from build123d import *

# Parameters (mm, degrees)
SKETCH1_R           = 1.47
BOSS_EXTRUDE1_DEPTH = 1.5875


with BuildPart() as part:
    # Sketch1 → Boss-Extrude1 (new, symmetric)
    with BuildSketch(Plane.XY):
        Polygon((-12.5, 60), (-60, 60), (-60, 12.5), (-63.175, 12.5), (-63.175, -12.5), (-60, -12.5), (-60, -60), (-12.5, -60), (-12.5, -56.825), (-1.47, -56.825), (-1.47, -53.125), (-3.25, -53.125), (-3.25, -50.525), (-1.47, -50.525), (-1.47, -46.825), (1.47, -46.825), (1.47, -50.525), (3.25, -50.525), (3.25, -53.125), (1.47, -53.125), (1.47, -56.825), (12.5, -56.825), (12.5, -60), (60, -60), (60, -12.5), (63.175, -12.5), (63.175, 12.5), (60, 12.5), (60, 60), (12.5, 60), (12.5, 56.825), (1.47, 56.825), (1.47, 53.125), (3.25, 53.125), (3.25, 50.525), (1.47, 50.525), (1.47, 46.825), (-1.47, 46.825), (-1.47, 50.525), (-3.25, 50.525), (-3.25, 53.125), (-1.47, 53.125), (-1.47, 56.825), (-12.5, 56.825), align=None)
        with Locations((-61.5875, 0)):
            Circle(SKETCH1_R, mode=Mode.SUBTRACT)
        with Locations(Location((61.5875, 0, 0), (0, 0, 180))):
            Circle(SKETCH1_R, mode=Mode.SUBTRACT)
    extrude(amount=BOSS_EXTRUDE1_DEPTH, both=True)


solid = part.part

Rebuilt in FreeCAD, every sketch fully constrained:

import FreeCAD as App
import Part
import Sketcher

V = App.Vector


def add_polygon(sketch, points):
    """Adds a closed chain of lines whose ends are joined by coincident constraints."""
    first, n = sketch.GeometryCount, len(points)
    for a, b in zip(points, points[1:] + points[:1]):
        sketch.addGeometry(Part.LineSegment(App.Vector(*a, 0), App.Vector(*b, 0)), False)
    for i in range(n):
        sketch.addConstraint(Sketcher.Constraint("Coincident", first + i, 2, first + (i + 1) % n, 1))

doc = App.newDocument("Part")
body = doc.addObject("PartDesign::Body", "Body")

# Sketch on XY plane
sketch1 = doc.addObject("Sketcher::SketchObject", "Sketch")
body.addObject(sketch1)
sketch1.AttachmentSupport = (doc.XY_Plane, [""])
sketch1.MapMode = "FlatFace"
add_polygon(sketch1, [(-12.5, 60), (-60, 60), (-60, 12.5), (-63.175, 12.5), (-63.175, -12.5), (-60, -12.5), (-60, -60), (-12.5, -60), (-12.5, -56.825), (-1.47, -56.825), (-1.47, -53.125), (-3.25, -53.125), (-3.25, -50.525), (-1.47, -50.525), (-1.47, -46.825), (1.47, -46.825), (1.47, -50.525), (3.25, -50.525), (3.25, -53.125), (1.47, -53.125), (1.47, -56.825), (12.5, -56.825), (12.5, -60), (60, -60), (60, -12.5), (63.175, -12.5), (63.175, 12.5), (60, 12.5), (60, 60), (12.5, 60), (12.5, 56.825), (1.47, 56.825), (1.47, 53.125), (3.25, 53.125), (3.25, 50.525), (1.47, 50.525), (1.47, 46.825), (-1.47, 46.825), (-1.47, 50.525), (-3.25, 50.525), (-3.25, 53.125), (-1.47, 53.125), (-1.47, 56.825), (-12.5, 56.825)])  # lines 0-43
sketch1.addGeometry(Part.Circle(V(-61.5875, 0, 0), V(0, 0, 1), 1.47), False)  # 44
sketch1.addGeometry(Part.Circle(V(61.5875, 0, 0), V(0, 0, 1), 1.47), False)  # 45
sketch1.addConstraint([
    Sketcher.Constraint("Horizontal", 0),
    Sketcher.Constraint("Vertical", 1),
    Sketcher.Constraint("Horizontal", 2),
    Sketcher.Constraint("Vertical", 3),
    Sketcher.Constraint("Horizontal", 4),
    Sketcher.Constraint("Vertical", 5),
    Sketcher.Constraint("Horizontal", 6),
    Sketcher.Constraint("Vertical", 7),
    Sketcher.Constraint("Horizontal", 8),
    Sketcher.Constraint("Vertical", 9),
    Sketcher.Constraint("Horizontal", 10),
    Sketcher.Constraint("Vertical", 11),
    Sketcher.Constraint("Horizontal", 12),
    Sketcher.Constraint("Vertical", 13),
    Sketcher.Constraint("Horizontal", 14),
    Sketcher.Constraint("Vertical", 15),
    Sketcher.Constraint("Horizontal", 16),
    Sketcher.Constraint("Vertical", 17),
    Sketcher.Constraint("Horizontal", 18),
    Sketcher.Constraint("Vertical", 19),
    Sketcher.Constraint("Horizontal", 20),
    Sketcher.Constraint("Vertical", 21),
    Sketcher.Constraint("Horizontal", 22),
    Sketcher.Constraint("Vertical", 23),
    Sketcher.Constraint("Horizontal", 24),
    Sketcher.Constraint("Vertical", 25),
    Sketcher.Constraint("Horizontal", 26),
    Sketcher.Constraint("Vertical", 27),
    Sketcher.Constraint("Horizontal", 28),
    Sketcher.Constraint("Vertical", 29),
    Sketcher.Constraint("Horizontal", 30),
    Sketcher.Constraint("Vertical", 31),
    Sketcher.Constraint("Horizontal", 32),
    Sketcher.Constraint("Vertical", 33),
    Sketcher.Constraint("Horizontal", 34),
    Sketcher.Constraint("Vertical", 35),
    Sketcher.Constraint("Horizontal", 36),
    Sketcher.Constraint("Vertical", 37),
    Sketcher.Constraint("Horizontal", 38),
    Sketcher.Constraint("Vertical", 39),
    Sketcher.Constraint("Horizontal", 40),
    Sketcher.Constraint("Vertical", 41),
    Sketcher.Constraint("Horizontal", 42),
    Sketcher.Constraint("Vertical", 43),
    Sketcher.Constraint("Equal", 44, 45),
    Sketcher.Constraint("Symmetric", 44, 3, 45, 3, -1, 1),
    Sketcher.Constraint("Symmetric", 0, 2, 22, 2, -1, 1),
    Sketcher.Constraint("Symmetric", 2, 2, 24, 2, -1, 1),
    Sketcher.Constraint("Symmetric", 4, 2, 26, 2, -1, 1),
    Sketcher.Constraint("Symmetric", 6, 2, 28, 2, -1, 1),
    Sketcher.Constraint("Symmetric", 8, 2, 30, 2, -1, 1),
    Sketcher.Constraint("Symmetric", 10, 2, 32, 2, -1, 1),
    Sketcher.Constraint("Symmetric", 12, 2, 34, 2, -1, 1),
    Sketcher.Constraint("Symmetric", 14, 2, 36, 2, -1, 1),
    Sketcher.Constraint("Symmetric", 16, 2, 38, 2, -1, 1),
    Sketcher.Constraint("Symmetric", 18, 2, 40, 2, -1, 1),
    Sketcher.Constraint("Symmetric", 20, 2, 42, 2, -1, 1),
    Sketcher.Constraint("Symmetric", 12, 2, 15, 2, -2),
    Sketcher.Constraint("Symmetric", 10, 2, 17, 2, -2),
    Sketcher.Constraint("Symmetric", 8, 2, 19, 2, -2),
    Sketcher.Constraint("Symmetric", 6, 2, 21, 2, -2),
    Sketcher.Constraint("Symmetric", 4, 2, 23, 2, -2),
    Sketcher.Constraint("PointOnObject", 44, 3, -1),
    Sketcher.Constraint("Vertical", 9, 2, 12, 2),
    Sketcher.Constraint("Equal", 28, 1),
    Sketcher.Constraint("Equal", 26, 7),
    Sketcher.Constraint("Equal", 9, 13),
    Sketcher.Constraint("Diameter", 44, 2.94),
    Sketcher.Constraint("DistanceY", 3, 2, 3, 1, 25.0),
    Sketcher.Constraint("DistanceX", 0, 2, 0, 1, 47.5),
    Sketcher.Constraint("DistanceY", 9, 1, 9, 2, 3.7),
    Sketcher.Constraint("DistanceY", 11, 1, 11, 2, 2.6),
    Sketcher.Constraint("DistanceX", 0, 2, -1, 1, 60.0),
    Sketcher.Constraint("DistanceX", 8, 1, 8, 2, 11.03),
    Sketcher.Constraint("DistanceX", 10, 2, 10, 1, 1.78),
    Sketcher.Constraint("DistanceX", 2, 2, 2, 1, 3.175),
    Sketcher.Constraint("DistanceX", 44, 3, 45, 3, 123.175),
])
pad1 = doc.addObject("PartDesign::Pad", "Pad")
body.addObject(pad1)
pad1.Profile = sketch1
pad1.Length = 3.175
pad1.Midplane = True

doc.recompute()
